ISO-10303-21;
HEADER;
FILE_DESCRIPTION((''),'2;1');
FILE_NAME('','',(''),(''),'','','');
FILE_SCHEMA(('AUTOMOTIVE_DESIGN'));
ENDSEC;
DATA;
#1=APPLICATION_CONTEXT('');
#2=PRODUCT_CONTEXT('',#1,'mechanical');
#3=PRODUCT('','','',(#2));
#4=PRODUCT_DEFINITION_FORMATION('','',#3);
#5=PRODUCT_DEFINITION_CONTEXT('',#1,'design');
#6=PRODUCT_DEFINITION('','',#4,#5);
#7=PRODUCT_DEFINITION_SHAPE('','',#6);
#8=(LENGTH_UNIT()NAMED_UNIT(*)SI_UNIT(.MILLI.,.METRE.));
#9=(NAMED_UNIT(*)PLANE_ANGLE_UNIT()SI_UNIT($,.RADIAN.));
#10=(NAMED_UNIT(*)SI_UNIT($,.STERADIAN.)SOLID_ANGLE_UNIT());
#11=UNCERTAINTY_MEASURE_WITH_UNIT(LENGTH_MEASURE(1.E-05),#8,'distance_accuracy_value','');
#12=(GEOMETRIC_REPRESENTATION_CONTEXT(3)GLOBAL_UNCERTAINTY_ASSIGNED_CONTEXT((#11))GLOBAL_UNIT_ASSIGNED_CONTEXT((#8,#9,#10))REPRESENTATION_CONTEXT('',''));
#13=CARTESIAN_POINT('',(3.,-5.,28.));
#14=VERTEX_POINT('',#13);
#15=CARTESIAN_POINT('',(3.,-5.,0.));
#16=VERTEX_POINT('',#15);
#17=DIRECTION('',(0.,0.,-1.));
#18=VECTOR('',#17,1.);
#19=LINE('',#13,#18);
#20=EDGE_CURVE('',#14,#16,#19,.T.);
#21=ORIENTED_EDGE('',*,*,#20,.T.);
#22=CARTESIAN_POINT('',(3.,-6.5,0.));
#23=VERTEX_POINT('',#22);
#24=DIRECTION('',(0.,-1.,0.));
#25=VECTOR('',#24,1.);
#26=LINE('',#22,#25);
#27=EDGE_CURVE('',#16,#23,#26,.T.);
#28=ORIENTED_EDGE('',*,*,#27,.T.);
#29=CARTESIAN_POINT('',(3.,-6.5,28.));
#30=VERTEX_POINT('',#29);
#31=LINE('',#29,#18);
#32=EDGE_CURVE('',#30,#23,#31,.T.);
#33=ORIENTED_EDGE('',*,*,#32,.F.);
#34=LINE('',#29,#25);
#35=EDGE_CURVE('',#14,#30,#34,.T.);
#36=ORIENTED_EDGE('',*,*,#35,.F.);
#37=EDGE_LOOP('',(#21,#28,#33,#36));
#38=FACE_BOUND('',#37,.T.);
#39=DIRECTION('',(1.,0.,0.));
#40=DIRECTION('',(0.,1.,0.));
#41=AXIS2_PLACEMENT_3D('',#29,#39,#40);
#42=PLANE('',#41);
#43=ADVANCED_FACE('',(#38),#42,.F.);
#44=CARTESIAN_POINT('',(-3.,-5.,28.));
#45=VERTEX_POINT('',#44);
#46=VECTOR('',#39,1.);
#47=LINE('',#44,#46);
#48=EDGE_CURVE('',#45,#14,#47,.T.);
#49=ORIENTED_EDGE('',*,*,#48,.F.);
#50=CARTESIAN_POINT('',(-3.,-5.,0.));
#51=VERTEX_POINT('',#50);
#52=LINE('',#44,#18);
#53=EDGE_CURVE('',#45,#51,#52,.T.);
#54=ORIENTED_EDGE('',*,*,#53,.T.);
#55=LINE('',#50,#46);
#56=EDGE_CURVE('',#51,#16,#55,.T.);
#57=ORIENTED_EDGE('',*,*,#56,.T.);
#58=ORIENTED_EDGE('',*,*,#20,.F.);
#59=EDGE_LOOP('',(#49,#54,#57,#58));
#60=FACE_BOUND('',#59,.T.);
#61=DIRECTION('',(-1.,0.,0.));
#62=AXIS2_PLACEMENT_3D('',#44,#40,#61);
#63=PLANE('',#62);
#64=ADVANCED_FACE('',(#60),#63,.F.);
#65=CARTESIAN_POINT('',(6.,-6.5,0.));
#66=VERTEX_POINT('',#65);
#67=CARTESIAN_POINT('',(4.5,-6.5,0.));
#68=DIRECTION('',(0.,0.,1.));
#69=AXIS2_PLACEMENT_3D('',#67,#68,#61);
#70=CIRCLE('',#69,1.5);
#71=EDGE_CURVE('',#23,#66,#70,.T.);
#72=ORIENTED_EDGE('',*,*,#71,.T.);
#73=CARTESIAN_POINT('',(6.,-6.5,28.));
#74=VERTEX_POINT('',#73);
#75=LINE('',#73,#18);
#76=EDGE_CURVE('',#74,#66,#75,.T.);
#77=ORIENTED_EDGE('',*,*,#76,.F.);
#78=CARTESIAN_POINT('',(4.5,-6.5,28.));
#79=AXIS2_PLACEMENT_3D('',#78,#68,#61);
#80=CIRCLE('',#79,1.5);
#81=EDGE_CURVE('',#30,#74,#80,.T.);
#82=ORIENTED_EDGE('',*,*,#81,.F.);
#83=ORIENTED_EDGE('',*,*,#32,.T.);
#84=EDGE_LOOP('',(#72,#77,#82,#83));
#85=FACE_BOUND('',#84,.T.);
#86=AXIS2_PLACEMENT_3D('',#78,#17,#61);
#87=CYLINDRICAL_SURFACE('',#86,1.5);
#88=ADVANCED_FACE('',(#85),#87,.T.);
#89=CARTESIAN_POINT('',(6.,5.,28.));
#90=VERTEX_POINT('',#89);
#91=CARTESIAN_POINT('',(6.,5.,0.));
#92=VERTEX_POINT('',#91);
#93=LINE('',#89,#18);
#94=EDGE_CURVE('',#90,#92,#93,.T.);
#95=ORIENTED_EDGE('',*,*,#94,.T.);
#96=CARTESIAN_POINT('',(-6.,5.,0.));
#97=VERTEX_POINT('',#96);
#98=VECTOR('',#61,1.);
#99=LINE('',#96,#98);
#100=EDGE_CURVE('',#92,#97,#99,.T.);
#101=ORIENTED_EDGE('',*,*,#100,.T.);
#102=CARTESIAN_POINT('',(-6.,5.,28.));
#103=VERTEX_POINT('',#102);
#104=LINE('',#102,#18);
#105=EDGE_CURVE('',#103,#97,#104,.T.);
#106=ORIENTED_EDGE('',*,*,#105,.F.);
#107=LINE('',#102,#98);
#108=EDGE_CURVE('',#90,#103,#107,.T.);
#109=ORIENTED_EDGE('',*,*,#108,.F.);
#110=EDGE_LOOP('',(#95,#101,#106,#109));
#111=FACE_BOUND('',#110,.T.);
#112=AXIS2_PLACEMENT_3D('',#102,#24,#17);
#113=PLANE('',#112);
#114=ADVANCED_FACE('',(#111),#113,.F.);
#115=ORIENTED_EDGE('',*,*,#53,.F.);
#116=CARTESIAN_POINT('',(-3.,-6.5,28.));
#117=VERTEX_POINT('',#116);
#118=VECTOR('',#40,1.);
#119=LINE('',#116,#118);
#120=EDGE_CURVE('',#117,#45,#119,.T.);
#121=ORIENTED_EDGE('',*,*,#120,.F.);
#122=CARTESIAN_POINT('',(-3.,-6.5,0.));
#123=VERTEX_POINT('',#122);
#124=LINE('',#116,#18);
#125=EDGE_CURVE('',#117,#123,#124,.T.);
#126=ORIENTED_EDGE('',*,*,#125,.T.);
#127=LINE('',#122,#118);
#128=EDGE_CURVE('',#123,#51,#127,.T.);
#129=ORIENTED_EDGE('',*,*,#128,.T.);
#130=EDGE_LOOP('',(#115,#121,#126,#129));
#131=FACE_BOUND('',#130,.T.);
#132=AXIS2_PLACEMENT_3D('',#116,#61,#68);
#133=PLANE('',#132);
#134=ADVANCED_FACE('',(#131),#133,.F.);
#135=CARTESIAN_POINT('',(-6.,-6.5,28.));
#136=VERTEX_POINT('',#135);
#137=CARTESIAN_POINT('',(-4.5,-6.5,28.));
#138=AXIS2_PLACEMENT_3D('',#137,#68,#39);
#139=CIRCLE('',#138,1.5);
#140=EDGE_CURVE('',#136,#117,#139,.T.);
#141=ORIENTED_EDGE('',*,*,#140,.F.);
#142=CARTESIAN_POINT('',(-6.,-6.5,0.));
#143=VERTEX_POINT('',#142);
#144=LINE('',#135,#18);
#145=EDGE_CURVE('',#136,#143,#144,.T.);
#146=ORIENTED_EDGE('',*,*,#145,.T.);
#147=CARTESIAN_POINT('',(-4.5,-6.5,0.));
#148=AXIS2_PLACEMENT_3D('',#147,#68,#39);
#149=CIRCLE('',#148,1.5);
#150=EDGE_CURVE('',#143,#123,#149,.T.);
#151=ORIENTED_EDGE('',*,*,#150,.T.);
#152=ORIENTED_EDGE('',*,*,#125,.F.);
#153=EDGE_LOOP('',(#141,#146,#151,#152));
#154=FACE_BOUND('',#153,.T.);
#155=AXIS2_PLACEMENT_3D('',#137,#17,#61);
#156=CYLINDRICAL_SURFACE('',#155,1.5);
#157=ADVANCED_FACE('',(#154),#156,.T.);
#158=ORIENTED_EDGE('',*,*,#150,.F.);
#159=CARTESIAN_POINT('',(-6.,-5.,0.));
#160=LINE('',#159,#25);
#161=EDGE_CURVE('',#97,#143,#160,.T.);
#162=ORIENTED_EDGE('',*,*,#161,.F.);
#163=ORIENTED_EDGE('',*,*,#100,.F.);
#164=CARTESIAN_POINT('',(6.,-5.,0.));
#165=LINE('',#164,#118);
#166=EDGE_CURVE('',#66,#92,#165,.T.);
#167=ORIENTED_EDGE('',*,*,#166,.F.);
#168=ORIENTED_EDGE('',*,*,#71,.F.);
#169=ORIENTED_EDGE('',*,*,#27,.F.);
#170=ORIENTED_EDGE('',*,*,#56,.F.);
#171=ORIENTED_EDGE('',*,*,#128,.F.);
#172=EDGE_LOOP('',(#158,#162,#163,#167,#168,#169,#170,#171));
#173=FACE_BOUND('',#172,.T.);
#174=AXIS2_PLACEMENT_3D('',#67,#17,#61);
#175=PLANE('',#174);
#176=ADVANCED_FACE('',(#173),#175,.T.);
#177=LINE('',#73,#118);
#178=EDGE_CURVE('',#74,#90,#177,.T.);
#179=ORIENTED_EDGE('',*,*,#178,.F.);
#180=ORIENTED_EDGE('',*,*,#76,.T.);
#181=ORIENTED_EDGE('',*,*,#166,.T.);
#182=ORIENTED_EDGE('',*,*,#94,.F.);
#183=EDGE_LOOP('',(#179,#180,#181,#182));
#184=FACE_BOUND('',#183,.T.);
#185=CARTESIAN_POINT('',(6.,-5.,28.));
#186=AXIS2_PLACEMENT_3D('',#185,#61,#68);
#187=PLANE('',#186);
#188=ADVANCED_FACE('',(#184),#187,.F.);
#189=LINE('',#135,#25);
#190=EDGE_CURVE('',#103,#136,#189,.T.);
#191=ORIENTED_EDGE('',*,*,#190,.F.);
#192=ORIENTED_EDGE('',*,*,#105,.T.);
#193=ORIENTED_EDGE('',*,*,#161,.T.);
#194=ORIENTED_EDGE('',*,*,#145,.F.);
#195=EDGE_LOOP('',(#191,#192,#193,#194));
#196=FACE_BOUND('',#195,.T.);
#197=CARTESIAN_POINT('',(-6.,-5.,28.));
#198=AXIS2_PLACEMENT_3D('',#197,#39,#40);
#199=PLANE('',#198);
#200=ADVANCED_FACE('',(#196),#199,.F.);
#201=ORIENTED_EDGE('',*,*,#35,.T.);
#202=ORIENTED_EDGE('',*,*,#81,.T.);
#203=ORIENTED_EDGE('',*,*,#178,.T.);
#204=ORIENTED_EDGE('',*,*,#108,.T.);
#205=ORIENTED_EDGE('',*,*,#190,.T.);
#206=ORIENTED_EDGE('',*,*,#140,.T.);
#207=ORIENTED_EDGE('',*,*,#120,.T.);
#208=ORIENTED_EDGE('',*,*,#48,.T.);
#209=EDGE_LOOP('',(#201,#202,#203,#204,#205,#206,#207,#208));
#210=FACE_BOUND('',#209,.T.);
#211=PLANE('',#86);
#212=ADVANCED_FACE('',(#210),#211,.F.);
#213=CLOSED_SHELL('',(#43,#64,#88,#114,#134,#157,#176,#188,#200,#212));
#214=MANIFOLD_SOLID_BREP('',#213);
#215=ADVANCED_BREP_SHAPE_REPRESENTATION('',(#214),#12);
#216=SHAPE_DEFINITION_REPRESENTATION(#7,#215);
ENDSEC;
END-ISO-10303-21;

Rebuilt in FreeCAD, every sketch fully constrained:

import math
import FreeCAD as App
import Part
import Sketcher
from FreeCAD import Vector

doc = App.newDocument("Part")
body = doc.addObject("PartDesign::Body", "Body")

# Sketch on XY plane
sketch1 = doc.addObject("Sketcher::SketchObject", "Sketch")
body.addObject(sketch1)
sketch1.AttachmentSupport = (doc.XY_Plane, [""])
sketch1.MapMode = "FlatFace"
sketch1.addGeometry([
    Part.LineSegment(Vector(-3, -5, 0), Vector(3, -5, 0)),  # 0
    Part.LineSegment(Vector(3, -5, 0), Vector(3, -6.5, 0)),  # 1
    Part.ArcOfCircle(Part.Circle(Vector(4.5, -6.5, 0), Vector(0, 0, 1), 1.5), math.radians(180), math.radians(360)),  # 2
    Part.LineSegment(Vector(6, -6.5, 0), Vector(6, 5, 0)),  # 3
    Part.LineSegment(Vector(6, 5, 0), Vector(-6, 5, 0)),  # 4
    Part.LineSegment(Vector(-6, 5, 0), Vector(-6, -6.5, 0)),  # 5
    Part.ArcOfCircle(Part.Circle(Vector(-4.5, -6.5, 0), Vector(0, 0, 1), 1.5), math.radians(180), math.radians(360)),  # 6
    Part.LineSegment(Vector(-3, -6.5, 0), Vector(-3, -5, 0)),  # 7
], False)
sketch1.addConstraint([
    Sketcher.Constraint("Coincident", 0, 2, 1, 1),
    Sketcher.Constraint("Tangent", 1, 2, 2, 1),
    Sketcher.Constraint("Tangent", 2, 2, 3, 1),
    Sketcher.Constraint("Coincident", 3, 2, 4, 1),
    Sketcher.Constraint("Coincident", 4, 2, 5, 1),
    Sketcher.Constraint("Tangent", 5, 2, 6, 1),
    Sketcher.Constraint("Tangent", 6, 2, 7, 1),
    Sketcher.Constraint("Coincident", 7, 2, 0, 1),
    Sketcher.Constraint("Horizontal", 0),
    Sketcher.Constraint("Vertical", 1),
    Sketcher.Constraint("Vertical", 3),
    Sketcher.Constraint("Horizontal", 4),
    Sketcher.Constraint("Vertical", 5),
    Sketcher.Constraint("Vertical", 7),
    Sketcher.Constraint("Equal", 2, 6),
    Sketcher.Constraint("Symmetric", 2, 3, 6, 3, -2),
    Sketcher.Constraint("Radius", 2, 1.5),
    Sketcher.Constraint("DistanceX", 0, 1, 0, 2, 6.0),
    Sketcher.Constraint("DistanceY", 1, 2, 1, 1, 1.5),
    Sketcher.Constraint("DistanceY", 3, 1, 3, 2, 11.5),
    Sketcher.Constraint("DistanceY", 0, 2, -1, 1, 5.0),
])
pad1 = doc.addObject("PartDesign::Pad", "Pad")
body.addObject(pad1)
pad1.Profile = sketch1
pad1.Length = 28

doc.recompute()
